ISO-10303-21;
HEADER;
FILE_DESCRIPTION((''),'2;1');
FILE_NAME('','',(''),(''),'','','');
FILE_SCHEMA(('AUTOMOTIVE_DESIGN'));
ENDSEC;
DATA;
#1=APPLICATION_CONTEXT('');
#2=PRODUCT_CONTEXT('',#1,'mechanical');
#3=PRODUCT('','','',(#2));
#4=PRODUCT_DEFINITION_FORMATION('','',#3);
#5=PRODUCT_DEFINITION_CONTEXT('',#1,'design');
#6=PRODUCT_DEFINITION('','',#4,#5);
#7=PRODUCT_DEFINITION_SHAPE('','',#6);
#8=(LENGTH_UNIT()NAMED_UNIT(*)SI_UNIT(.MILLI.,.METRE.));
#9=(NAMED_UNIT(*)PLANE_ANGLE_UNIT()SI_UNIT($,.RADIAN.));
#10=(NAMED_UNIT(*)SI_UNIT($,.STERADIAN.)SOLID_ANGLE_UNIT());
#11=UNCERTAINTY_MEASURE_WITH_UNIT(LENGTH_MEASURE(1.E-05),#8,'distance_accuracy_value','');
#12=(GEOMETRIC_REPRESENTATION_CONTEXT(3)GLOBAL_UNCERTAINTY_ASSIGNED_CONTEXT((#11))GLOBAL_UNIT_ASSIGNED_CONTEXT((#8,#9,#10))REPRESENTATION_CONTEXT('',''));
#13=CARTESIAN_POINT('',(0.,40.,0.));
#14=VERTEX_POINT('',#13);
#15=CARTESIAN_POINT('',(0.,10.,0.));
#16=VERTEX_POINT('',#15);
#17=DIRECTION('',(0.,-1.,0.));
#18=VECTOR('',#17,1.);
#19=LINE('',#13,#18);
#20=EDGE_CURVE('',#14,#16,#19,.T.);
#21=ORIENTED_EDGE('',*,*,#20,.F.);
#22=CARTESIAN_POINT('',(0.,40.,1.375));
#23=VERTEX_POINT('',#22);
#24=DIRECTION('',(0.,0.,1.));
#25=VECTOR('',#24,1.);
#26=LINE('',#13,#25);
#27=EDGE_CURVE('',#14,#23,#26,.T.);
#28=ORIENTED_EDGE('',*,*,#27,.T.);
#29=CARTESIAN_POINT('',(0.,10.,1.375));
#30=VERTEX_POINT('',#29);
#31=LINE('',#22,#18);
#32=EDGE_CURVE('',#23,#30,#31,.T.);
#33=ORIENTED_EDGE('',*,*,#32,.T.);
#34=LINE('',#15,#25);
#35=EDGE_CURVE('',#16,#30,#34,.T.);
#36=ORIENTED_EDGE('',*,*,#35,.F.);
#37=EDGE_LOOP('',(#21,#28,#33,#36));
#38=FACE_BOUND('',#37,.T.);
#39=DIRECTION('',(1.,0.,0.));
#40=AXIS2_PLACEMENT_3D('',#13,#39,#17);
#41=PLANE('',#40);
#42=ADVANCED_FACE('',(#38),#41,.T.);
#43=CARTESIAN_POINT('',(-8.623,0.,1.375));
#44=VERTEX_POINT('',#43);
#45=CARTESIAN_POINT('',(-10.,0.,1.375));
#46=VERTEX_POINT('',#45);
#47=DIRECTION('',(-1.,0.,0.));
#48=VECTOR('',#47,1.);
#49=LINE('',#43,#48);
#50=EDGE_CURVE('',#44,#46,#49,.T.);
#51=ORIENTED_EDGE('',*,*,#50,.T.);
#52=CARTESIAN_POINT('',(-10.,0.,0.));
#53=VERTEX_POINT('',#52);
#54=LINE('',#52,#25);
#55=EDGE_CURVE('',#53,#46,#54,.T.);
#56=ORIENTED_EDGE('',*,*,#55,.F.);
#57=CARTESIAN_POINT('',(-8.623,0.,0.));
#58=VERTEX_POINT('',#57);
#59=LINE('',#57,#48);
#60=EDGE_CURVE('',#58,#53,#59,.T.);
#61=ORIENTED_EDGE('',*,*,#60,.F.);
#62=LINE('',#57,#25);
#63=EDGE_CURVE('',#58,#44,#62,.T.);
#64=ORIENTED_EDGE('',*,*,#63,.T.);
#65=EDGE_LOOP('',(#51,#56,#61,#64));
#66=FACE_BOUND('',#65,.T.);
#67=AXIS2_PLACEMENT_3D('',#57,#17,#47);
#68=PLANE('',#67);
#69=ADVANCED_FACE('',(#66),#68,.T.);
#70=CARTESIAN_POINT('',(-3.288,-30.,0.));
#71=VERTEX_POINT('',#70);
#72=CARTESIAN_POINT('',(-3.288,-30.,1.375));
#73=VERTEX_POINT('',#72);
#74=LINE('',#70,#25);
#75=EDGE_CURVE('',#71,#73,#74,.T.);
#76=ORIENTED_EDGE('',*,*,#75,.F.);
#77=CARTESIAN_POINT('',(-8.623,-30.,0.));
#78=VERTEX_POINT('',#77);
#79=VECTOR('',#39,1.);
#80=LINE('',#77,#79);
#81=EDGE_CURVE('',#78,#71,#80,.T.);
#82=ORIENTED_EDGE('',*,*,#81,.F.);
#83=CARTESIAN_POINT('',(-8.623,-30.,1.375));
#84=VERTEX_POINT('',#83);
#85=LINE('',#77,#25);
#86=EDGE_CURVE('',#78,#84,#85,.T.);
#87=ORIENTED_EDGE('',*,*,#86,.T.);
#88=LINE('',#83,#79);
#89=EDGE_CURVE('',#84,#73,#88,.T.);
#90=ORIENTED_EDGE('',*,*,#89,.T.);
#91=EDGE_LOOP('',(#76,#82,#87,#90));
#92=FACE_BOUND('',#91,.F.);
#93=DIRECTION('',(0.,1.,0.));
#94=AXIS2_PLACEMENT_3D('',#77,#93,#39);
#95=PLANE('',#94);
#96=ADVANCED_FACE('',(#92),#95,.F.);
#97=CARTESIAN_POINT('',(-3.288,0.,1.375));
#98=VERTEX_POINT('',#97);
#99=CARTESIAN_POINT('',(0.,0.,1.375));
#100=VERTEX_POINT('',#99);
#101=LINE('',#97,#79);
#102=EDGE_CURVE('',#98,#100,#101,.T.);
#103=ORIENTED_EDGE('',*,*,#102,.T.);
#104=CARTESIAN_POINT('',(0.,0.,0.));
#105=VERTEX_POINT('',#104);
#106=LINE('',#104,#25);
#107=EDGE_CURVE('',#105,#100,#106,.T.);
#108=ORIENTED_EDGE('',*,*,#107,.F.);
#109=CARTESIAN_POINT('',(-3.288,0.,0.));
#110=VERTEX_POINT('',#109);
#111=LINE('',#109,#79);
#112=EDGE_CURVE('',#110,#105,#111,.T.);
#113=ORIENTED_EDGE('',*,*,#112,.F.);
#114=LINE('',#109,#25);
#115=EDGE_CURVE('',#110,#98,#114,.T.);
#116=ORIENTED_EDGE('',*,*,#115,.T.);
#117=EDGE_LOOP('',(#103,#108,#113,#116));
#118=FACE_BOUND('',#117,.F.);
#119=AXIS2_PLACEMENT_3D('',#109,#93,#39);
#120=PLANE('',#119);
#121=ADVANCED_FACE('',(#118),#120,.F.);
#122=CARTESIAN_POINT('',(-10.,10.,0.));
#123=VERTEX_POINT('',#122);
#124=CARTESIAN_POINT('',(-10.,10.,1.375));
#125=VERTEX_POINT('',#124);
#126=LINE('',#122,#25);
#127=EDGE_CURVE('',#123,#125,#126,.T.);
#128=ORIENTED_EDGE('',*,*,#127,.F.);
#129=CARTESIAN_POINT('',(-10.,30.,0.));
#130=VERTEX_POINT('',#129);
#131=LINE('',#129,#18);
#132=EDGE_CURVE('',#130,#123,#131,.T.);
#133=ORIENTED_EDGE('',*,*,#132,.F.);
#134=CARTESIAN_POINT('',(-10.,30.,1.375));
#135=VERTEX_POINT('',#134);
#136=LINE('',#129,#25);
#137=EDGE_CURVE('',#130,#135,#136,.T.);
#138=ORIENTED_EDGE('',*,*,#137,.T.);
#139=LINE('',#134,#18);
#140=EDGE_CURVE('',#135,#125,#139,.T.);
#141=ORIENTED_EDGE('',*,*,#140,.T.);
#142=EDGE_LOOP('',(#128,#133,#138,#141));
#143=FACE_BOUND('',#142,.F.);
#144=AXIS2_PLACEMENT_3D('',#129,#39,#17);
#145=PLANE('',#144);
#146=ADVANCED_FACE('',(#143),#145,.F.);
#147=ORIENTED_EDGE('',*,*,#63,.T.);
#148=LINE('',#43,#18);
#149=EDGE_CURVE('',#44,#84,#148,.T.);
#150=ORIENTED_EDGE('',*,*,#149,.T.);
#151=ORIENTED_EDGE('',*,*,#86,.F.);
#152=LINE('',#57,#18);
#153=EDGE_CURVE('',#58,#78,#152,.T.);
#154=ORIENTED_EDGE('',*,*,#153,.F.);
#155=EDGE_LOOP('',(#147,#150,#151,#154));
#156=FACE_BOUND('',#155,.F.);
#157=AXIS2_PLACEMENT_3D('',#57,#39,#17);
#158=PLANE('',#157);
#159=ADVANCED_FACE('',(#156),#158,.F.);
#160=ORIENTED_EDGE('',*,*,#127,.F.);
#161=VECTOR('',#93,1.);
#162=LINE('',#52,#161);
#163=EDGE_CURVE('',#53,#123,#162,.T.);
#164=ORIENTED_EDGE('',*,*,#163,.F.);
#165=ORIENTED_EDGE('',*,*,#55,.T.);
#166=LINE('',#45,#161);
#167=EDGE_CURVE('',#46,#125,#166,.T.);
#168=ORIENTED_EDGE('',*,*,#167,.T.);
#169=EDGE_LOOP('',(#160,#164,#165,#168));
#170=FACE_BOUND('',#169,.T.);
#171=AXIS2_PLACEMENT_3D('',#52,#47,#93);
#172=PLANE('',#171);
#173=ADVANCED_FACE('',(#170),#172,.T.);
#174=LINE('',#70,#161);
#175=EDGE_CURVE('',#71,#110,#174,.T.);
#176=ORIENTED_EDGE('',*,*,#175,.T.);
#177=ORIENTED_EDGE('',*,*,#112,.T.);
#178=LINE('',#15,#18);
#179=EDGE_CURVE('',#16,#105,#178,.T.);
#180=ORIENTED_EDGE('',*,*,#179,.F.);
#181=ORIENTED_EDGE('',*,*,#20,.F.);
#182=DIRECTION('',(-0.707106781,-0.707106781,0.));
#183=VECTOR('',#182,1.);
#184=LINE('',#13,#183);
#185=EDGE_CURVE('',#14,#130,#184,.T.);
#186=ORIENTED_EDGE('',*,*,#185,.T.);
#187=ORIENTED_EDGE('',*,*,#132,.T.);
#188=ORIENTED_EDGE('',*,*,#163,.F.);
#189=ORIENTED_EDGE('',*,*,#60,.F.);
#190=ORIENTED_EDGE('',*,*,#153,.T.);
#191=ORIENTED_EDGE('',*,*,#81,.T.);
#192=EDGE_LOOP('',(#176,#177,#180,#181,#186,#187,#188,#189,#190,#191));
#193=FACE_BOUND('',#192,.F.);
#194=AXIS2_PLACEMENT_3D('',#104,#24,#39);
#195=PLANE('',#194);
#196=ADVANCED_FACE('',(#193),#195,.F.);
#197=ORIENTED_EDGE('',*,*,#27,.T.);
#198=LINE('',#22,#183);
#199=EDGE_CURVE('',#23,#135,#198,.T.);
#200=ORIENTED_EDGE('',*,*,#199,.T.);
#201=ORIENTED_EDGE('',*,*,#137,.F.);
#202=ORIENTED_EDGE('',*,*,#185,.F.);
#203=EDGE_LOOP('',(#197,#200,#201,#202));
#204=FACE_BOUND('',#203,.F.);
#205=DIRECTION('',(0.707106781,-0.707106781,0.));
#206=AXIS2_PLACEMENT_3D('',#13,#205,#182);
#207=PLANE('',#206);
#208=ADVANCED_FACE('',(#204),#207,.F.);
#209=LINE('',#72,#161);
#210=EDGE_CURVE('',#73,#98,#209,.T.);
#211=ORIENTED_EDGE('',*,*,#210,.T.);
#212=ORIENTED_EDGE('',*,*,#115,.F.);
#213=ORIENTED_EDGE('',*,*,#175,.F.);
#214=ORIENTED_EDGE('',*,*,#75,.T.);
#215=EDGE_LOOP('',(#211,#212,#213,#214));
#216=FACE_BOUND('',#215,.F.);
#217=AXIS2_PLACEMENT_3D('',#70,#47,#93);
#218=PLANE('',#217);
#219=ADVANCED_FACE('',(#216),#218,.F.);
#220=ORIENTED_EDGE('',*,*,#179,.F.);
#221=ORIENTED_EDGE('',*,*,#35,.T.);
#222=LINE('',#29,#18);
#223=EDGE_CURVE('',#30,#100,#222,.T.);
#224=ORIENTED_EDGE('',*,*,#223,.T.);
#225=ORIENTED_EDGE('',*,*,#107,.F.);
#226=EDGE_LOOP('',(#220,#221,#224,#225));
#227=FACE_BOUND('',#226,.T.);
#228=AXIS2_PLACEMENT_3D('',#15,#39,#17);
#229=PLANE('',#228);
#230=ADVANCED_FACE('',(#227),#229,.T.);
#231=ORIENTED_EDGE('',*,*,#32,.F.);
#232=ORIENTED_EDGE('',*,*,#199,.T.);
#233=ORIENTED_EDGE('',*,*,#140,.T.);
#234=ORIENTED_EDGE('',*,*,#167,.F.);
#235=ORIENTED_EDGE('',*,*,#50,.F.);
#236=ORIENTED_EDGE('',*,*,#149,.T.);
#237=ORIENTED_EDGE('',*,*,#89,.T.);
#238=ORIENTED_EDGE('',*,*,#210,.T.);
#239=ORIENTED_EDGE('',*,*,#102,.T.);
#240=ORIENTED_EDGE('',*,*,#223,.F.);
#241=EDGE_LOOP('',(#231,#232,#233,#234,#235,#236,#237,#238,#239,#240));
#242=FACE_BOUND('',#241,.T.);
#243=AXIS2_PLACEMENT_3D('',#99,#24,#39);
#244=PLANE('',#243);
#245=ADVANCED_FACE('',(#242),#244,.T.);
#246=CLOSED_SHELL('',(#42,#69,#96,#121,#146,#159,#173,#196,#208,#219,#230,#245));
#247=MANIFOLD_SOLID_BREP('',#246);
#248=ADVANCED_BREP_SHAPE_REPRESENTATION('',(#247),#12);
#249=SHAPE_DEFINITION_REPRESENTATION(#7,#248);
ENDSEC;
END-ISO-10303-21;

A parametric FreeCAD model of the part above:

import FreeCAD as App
import Part
import Sketcher

V = App.Vector
Q = App.Units.Quantity


def add_polygon(sketch, points):
    """Adds a closed chain of lines whose ends are joined by coincident constraints."""
    first, n = sketch.GeometryCount, len(points)
    for a, b in zip(points, points[1:] + points[:1]):
        sketch.addGeometry(Part.LineSegment(App.Vector(*a, 0), App.Vector(*b, 0)), False)
    for i in range(n):
        sketch.addConstraint(Sketcher.Constraint("Coincident", first + i, 2, first + (i + 1) % n, 1))

doc = App.newDocument("Part")
body = doc.addObject("PartDesign::Body", "Body")

sketch1 = body.newObject("Sketcher::SketchObject", "Sketch")
sketch1.AttachmentSupport = (doc.getObject("XY_Plane"), [""])
sketch1.MapMode = "FlatFace"
add_polygon(sketch1, [(-10, 30), (-10, 0), (-8.6, 0), (-8.6, -30), (-3.3, -30), (-3.3, 0), (0, 0), (0, 40)])
sketch1.addConstraint([
    Sketcher.Constraint("Vertical", 0),
    Sketcher.Constraint("Horizontal", 1),
    Sketcher.Constraint("Vertical", 2),
    Sketcher.Constraint("Horizontal", 3),
    Sketcher.Constraint("Vertical", 4),
    Sketcher.Constraint("Horizontal", 5),
    Sketcher.Constraint("Vertical", 6),
    Sketcher.Constraint("Coincident", 5, 2, -1, 1),
    Sketcher.Constraint("PointOnObject", 0, 2, -1),
    Sketcher.Constraint("Equal", 0, 2),
    Sketcher.Constraint("DistanceY", 0, 2, 0, 1, Q("30 mm")),
    Sketcher.Constraint("Angle", 7, Q("-135 deg")),
    Sketcher.Constraint("DistanceX", 0, 2, -1, 1, Q("10 mm")),
    Sketcher.Constraint("DistanceX", 1, 1, 1, 2, Q("1.377 mm")),
    Sketcher.Constraint("DistanceX", 3, 1, 3, 2, Q("5.335 mm")),
])
pad1 = body.newObject("PartDesign::Pad", "Pad")
pad1.Profile = sketch1
pad1.Length = 1.375

doc.recompute()
